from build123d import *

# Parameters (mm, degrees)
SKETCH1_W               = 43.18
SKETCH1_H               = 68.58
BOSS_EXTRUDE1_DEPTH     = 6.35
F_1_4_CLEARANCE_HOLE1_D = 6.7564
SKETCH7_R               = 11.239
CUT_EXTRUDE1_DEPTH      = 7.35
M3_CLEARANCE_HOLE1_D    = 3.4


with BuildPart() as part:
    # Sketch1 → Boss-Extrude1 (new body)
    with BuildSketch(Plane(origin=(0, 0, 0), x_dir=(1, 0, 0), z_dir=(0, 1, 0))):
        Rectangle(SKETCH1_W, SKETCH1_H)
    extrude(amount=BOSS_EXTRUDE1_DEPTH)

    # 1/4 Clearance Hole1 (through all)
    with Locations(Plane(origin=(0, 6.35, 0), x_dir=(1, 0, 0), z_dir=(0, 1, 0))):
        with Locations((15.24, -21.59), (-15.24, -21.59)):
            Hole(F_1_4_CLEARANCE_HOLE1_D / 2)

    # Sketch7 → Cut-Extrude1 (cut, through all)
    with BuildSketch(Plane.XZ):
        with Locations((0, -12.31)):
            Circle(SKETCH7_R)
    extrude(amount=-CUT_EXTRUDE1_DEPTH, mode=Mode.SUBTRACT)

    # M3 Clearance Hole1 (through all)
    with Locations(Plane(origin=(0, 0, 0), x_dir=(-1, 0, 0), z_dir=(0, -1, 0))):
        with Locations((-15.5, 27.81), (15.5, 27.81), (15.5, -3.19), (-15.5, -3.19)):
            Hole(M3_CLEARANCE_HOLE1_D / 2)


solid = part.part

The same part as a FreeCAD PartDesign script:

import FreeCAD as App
import Part
import Sketcher

V = App.Vector
Q = App.Units.Quantity

doc = App.newDocument("Part")
body = doc.addObject("PartDesign::Body", "Body")

sketch1 = body.newObject("Sketcher::SketchObject", "Sketch")
sketch1.AttachmentSupport = (doc.getObject("XZ_Plane"), [""])
sketch1.MapMode = "FlatFace"
sketch1.addGeometry([
    Part.LineSegment(V(-22, -34, 0), V(-22, 34, 0)),
    Part.LineSegment(V(-22, 34, 0), V(22, 34, 0)),
    Part.LineSegment(V(22, 34, 0), V(22, -34, 0)),
    Part.LineSegment(V(22, -34, 0), V(-22, -34, 0)),
], False)
sketch1.addConstraint([
    Sketcher.Constraint("Coincident", 0, 2, 1, 1),
    Sketcher.Constraint("Coincident", 1, 2, 2, 1),
    Sketcher.Constraint("Coincident", 2, 2, 3, 1),
    Sketcher.Constraint("Coincident", 3, 2, 0, 1),
    Sketcher.Constraint("Vertical", 0),
    Sketcher.Constraint("Horizontal", 1),
    Sketcher.Constraint("Vertical", 2),
    Sketcher.Constraint("Horizontal", 3),
    Sketcher.Constraint("Symmetric", 0, 2, 2, 2, -1, 1),
    Sketcher.Constraint("DistanceX", 1, 1, 1, 2, Q("1.7 in")),
    Sketcher.Constraint("DistanceY", 0, 1, 0, 2, Q("2.7 in")),
])
pad1 = body.newObject("PartDesign::Pad", "Pad")
pad1.Profile = sketch1
pad1.Length = Q("0.25 in")
pad1.Reversed = True

sketch2 = body.newObject("Sketcher::SketchObject", "Sketch001")
sketch2.AttachmentSupport = (doc.getObject("XZ_Plane"), [""])
sketch2.MapMode = "FlatFace"
sketch2.AttachmentOffset = App.Placement(V(0, 0, -0.25 * 25.4), App.Rotation())
sketch2.addGeometry([
    Part.Circle(V(15.2, 21.6, 0), V(0, 0, 1), 3.4),
    Part.Circle(V(-15.2, 21.6, 0), V(0, 0, 1), 3.4),
], False)
sketch2.addConstraint([
    Sketcher.Constraint("Equal", 0, 1),
    Sketcher.Constraint("Symmetric", 0, 3, 1, 3, -2),
    Sketcher.Constraint("Diameter", 0, Q("0.266 in")),
    Sketcher.Constraint("DistanceX", -1, 1, 0, 3, Q("0.6 in")),
    Sketcher.Constraint("DistanceY", -1, 1, 0, 3, Q("0.85 in")),
])
doc.recompute()
hole = body.newObject("PartDesign::Hole", "Hole")
hole.Profile = sketch2
hole.ThreadType = "None"
hole.Diameter = Q("0.266 in")
hole.DepthType = "ThroughAll"
hole.Reversed = True

sketch3 = body.newObject("Sketcher::SketchObject", "Sketch002")
sketch3.AttachmentSupport = (doc.getObject("XZ_Plane"), [""])
sketch3.MapMode = "FlatFace"
sketch3.addGeometry(Part.Circle(V(0, -12, 0), V(0, 0, 1), 11), False)
sketch3.addConstraint([
    Sketcher.Constraint("PointOnObject", 0, 3, -2),
    Sketcher.Constraint("Diameter", 0, 22.478),
    Sketcher.Constraint("DistanceY", 0, 3, -1, 1, 12.31),
])
pocket1 = body.newObject("PartDesign::Pocket", "Pocket")
pocket1.Profile = sketch3
pocket1.Type = "ThroughAll"

sketch4 = body.newObject("Sketcher::SketchObject", "Sketch003")
sketch4.AttachmentSupport = (doc.getObject("XZ_Plane"), [""])
sketch4.MapMode = "FlatFace"
sketch4.addGeometry([
    Part.Circle(V(15.5, -27.8, 0), V(0, 0, 1), 1.7),
    Part.Circle(V(-15.5, -27.8, 0), V(0, 0, 1), 1.7),
    Part.Circle(V(-15.5, 3.2, 0), V(0, 0, 1), 1.7),
    Part.Circle(V(15.5, 3.2, 0), V(0, 0, 1), 1.7),
], False)
sketch4.addConstraint([
    Sketcher.Constraint("Equal", 0, 1),
    Sketcher.Constraint("Equal", 1, 2),
    Sketcher.Constraint("Equal", 2, 3),
    Sketcher.Constraint("Symmetric", 0, 3, 1, 3, -2),
    Sketcher.Constraint("Symmetric", 2, 3, 3, 3, -2),
    Sketcher.Constraint("Vertical", 1, 3, 2, 3),
    Sketcher.Constraint("Diameter", 0, 3.4),
    Sketcher.Constraint("DistanceX", -1, 1, 0, 3, 15.5),
    Sketcher.Constraint("DistanceY", 0, 3, -1, 1, 27.81),
    Sketcher.Constraint("DistanceY", -1, 1, 2, 3, 3.19),
])
doc.recompute()
hole2 = body.newObject("PartDesign::Hole", "Hole001")
hole2.Profile = sketch4
hole2.ThreadType = "None"
hole2.Diameter = 3.4
hole2.DepthType = "ThroughAll"

doc.recompute()
